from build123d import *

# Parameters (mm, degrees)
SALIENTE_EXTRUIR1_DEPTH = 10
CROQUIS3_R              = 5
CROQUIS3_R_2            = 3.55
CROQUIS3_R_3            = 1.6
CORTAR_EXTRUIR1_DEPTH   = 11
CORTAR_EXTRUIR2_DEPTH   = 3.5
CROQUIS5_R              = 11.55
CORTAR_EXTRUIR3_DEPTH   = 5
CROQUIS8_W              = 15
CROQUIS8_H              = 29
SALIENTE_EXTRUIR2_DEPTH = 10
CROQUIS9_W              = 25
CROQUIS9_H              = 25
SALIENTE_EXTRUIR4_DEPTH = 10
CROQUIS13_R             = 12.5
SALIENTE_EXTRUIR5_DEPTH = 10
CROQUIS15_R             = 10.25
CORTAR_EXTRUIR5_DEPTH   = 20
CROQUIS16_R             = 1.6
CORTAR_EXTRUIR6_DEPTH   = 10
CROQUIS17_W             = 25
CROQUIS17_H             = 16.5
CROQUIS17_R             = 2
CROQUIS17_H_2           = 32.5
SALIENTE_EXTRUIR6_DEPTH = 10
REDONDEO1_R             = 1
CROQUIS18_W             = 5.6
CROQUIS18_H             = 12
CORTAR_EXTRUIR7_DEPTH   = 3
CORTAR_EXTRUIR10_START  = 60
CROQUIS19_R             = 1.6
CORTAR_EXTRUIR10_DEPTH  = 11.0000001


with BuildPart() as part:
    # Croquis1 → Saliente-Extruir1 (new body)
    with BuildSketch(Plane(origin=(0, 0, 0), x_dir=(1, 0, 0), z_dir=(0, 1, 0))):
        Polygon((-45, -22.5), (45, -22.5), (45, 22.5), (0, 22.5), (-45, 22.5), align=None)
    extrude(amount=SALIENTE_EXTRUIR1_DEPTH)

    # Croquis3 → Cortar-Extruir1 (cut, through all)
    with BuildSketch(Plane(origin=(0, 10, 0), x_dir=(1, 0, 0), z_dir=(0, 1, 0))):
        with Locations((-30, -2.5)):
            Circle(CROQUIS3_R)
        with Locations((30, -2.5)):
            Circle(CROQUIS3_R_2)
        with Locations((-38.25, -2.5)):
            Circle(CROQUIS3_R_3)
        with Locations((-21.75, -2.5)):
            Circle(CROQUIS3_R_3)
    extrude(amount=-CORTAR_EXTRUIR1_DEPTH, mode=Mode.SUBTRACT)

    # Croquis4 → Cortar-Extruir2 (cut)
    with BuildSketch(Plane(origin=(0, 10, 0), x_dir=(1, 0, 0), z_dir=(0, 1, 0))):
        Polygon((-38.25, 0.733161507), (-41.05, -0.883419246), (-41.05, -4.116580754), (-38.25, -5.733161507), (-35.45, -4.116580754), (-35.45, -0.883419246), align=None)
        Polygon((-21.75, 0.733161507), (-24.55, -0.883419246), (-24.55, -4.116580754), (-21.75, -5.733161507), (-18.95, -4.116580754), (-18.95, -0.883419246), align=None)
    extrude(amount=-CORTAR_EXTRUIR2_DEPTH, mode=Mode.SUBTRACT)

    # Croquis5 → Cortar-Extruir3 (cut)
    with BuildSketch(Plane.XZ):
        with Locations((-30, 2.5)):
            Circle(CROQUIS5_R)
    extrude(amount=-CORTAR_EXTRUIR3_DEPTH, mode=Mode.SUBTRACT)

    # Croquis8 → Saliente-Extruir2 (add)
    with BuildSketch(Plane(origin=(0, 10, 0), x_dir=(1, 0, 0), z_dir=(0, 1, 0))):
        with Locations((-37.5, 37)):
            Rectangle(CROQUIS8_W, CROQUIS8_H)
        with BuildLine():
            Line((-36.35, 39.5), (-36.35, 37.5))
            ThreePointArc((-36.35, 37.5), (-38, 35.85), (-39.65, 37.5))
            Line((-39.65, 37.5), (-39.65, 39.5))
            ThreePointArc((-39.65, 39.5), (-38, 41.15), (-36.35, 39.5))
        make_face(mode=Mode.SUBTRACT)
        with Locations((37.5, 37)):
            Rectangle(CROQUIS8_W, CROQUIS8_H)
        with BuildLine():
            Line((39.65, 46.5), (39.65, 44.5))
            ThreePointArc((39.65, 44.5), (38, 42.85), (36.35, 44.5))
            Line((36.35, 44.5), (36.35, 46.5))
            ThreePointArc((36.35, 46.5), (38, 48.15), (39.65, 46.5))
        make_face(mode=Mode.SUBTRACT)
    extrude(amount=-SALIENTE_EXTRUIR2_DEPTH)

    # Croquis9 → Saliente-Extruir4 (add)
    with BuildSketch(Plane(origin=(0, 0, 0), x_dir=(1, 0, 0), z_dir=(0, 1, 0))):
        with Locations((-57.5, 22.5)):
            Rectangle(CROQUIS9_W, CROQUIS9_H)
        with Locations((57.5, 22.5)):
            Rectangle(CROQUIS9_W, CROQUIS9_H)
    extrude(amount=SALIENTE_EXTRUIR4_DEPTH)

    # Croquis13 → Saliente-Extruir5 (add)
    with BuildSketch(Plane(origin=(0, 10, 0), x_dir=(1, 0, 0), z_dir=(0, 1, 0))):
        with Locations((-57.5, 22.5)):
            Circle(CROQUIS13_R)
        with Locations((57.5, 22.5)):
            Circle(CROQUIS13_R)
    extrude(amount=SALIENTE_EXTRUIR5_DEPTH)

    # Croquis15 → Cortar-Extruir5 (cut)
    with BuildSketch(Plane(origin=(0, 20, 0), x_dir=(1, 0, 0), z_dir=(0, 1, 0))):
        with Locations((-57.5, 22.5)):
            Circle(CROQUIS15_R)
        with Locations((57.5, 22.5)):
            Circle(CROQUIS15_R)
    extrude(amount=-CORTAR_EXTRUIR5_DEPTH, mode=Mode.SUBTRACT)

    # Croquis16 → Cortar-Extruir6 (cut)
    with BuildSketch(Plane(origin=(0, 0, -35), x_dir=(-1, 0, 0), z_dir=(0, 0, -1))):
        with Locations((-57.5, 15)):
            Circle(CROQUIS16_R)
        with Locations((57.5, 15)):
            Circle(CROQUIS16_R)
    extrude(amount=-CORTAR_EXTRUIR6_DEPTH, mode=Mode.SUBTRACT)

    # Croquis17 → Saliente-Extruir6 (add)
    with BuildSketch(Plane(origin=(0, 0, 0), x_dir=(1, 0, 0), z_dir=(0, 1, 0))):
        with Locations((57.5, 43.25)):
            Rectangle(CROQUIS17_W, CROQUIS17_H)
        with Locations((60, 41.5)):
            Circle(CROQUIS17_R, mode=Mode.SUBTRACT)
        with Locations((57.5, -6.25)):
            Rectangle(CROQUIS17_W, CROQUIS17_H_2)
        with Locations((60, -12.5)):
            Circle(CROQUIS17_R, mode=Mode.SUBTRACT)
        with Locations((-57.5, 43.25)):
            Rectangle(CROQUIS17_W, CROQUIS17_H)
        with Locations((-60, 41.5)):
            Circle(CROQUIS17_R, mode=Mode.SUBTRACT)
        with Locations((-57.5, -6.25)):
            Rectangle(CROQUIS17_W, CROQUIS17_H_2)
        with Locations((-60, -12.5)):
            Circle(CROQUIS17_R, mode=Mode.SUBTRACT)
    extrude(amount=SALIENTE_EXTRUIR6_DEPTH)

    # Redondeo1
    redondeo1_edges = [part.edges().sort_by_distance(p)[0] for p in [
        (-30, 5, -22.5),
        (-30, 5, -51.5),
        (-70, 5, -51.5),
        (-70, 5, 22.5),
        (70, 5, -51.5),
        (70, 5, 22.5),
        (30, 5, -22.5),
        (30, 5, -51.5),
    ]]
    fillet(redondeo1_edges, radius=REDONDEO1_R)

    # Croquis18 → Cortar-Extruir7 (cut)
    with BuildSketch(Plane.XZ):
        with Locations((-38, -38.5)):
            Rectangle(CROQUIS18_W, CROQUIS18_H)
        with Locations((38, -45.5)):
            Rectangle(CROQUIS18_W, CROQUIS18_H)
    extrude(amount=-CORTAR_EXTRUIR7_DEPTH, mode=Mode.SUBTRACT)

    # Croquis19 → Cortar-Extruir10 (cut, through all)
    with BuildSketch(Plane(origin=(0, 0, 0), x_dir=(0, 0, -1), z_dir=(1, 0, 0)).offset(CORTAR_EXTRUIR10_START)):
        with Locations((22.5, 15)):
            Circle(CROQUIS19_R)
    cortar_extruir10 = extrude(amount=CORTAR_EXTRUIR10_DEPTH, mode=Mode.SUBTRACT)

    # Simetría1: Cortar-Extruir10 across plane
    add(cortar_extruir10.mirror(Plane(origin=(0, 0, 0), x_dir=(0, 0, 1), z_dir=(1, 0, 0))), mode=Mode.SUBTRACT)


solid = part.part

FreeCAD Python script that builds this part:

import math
import FreeCAD as App
import Part
import Sketcher
Q = App.Units.Quantity


def edges_at(feature, points):
    """Names of the edges that pass closest to the given points."""
    edges = feature.Shape.Edges
    near = lambda p: min(range(len(edges)), key=lambda i: edges[i].distToShape(Part.Vertex(*p))[0])
    return sorted({f"Edge{near(p) + 1}" for p in points})


def add_polygon(sketch, points):
    """Adds a closed chain of lines whose ends are joined by coincident constraints."""
    first, n = sketch.GeometryCount, len(points)
    for a, b in zip(points, points[1:] + points[:1]):
        sketch.addGeometry(Part.LineSegment(App.Vector(*a, 0), App.Vector(*b, 0)), False)
    for i in range(n):
        sketch.addConstraint(Sketcher.Constraint("Coincident", first + i, 2, first + (i + 1) % n, 1))

doc = App.newDocument("Part")
body = doc.addObject("PartDesign::Body", "Body")

sketch1 = body.newObject("Sketcher::SketchObject", "Sketch")
sketch1.AttachmentSupport = (doc.getObject("XZ_Plane"), [""])
sketch1.MapMode = "FlatFace"
add_polygon(sketch1, [(-45, 22), (45, 22), (45, -22), (-45, -22)])
sketch1.addConstraint([
    Sketcher.Constraint("Horizontal", 0),
    Sketcher.Constraint("Vertical", 1),
    Sketcher.Constraint("Horizontal", 2),
    Sketcher.Constraint("Vertical", 3),
    Sketcher.Constraint("Symmetric", 0, 2, 2, 2, -1, 1),
    Sketcher.Constraint("DistanceX", 0, 1, 0, 2, Q("90 mm")),
    Sketcher.Constraint("DistanceY", 1, 2, 1, 1, Q("45 mm")),
])
pad1 = body.newObject("PartDesign::Pad", "Pad")
pad1.Profile = sketch1
pad1.Length = 10
pad1.Reversed = True

sketch2 = body.newObject("Sketcher::SketchObject", "Sketch001")
sketch2.AttachmentSupport = (doc.getObject("XZ_Plane"), [""])
sketch2.MapMode = "FlatFace"
sketch2.AttachmentOffset = App.Placement(App.Vector(0, 0, -10), App.Rotation())
sketch2.addGeometry([
    Part.Circle(App.Vector(-30, 2.5, 0), App.Vector(0, 0, 1), 5),
    Part.Circle(App.Vector(30, 2.5, 0), App.Vector(0, 0, 1), 3.5),
    Part.Circle(App.Vector(-38.2, 2.5, 0), App.Vector(0, 0, 1), 1.6),
    Part.Circle(App.Vector(-21.8, 2.5, 0), App.Vector(0, 0, 1), 1.6),
], False)
sketch2.addConstraint([
    Sketcher.Constraint("Equal", 2, 3),
    Sketcher.Constraint("Symmetric", 0, 3, 1, 3, -2),
    Sketcher.Constraint("Horizontal", 1, 3, 2, 3),
    Sketcher.Constraint("Horizontal", 2, 3, 3, 3),
    Sketcher.Constraint("Diameter", 0, Q("10 mm")),
    Sketcher.Constraint("Diameter", 1, Q("7.1 mm")),
    Sketcher.Constraint("Diameter", 2, Q("3.2 mm")),
    Sketcher.Constraint("DistanceX", 0, 3, -1, 1, Q("30 mm")),
    Sketcher.Constraint("DistanceY", -1, 1, 0, 3, Q("2.5 mm")),
    Sketcher.Constraint("DistanceX", 2, 3, 3, 3, Q("16.5 mm")),
    Sketcher.Constraint("DistanceX", 2, 3, -1, 1, Q("38.25 mm")),
])
pocket1 = body.newObject("PartDesign::Pocket", "Pocket")
pocket1.Profile = sketch2
pocket1.Type = "ThroughAll"
pocket1.Reversed = True

sketch3 = body.newObject("Sketcher::SketchObject", "Sketch002")
sketch3.AttachmentSupport = (doc.getObject("XZ_Plane"), [""])
sketch3.MapMode = "FlatFace"
sketch3.AttachmentOffset = App.Placement(App.Vector(0, 0, -10), App.Rotation())
add_polygon(sketch3, [(-38.2, -0.7), (-41, 0.9), (-41, 4.1), (-38.2, 5.7), (-35.5, 4.1), (-35.5, 0.9)])
add_polygon(sketch3, [(-21.8, -0.7), (-24.6, 0.9), (-24.6, 4.1), (-21.8, 5.7), (-18.9, 4.1), (-18.9, 0.9)])
sketch3.addConstraint([
    Sketcher.Constraint("Vertical", 1),
    Sketcher.Constraint("Vertical", 4),
    Sketcher.Constraint("Vertical", 7),
    Sketcher.Constraint("Vertical", 10),
    Sketcher.Constraint("Parallel", 0, 3),
    Sketcher.Constraint("Parallel", 2, 5),
    Sketcher.Constraint("Parallel", 3, 6),
    Sketcher.Constraint("Parallel", 5, 8),
    Sketcher.Constraint("Parallel", 6, 9),
    Sketcher.Constraint("Parallel", 8, 11),
    Sketcher.Constraint("Horizontal", 1, 2, 3, 2),
    Sketcher.Constraint("Horizontal", 0, 2, 4, 2),
    Sketcher.Constraint("Horizontal", 4, 2, 6, 2),
    Sketcher.Constraint("Horizontal", 3, 2, 7, 2),
    Sketcher.Constraint("Horizontal", 2, 2, 8, 2),
    Sketcher.Constraint("Horizontal", 7, 2, 9, 2),
    Sketcher.Constraint("Horizontal", 6, 2, 10, 2),
    Sketcher.Constraint("Vertical", 2, 2, 5, 2),
    Sketcher.Constraint("Angle", 0, Q("150 deg")),
    Sketcher.Constraint("DistanceX", 1, 2, 2, 2, Q("2.8 mm")),
    Sketcher.Constraint("DistanceX", 4, 2, 6, 2, Q("10.9 mm")),
    Sketcher.Constraint("DistanceX", 0, 2, -1, 1, Q("41.05 mm")),
    Sketcher.Constraint("DistanceY", 1, 1, 1, 2, Q("3.233162 mm")),
    Sketcher.Constraint("DistanceY", -1, 1, 0, 2, Q("0.883419 mm")),
])
pocket2 = body.newObject("PartDesign::Pocket", "Pocket001")
pocket2.Profile = sketch3
pocket2.Length = 3.5
pocket2.Reversed = True

sketch4 = body.newObject("Sketcher::SketchObject", "Sketch003")
sketch4.AttachmentSupport = (doc.getObject("XZ_Plane"), [""])
sketch4.MapMode = "FlatFace"
sketch4.addGeometry(Part.Circle(App.Vector(-30, 2, 0), App.Vector(0, 0, 1), 12), False)
sketch4.addConstraint([
    Sketcher.Constraint("Diameter", 0, Q("23.1 mm")),
    Sketcher.Constraint("DistanceX", 0, 3, -1, 1, Q("30 mm")),
    Sketcher.Constraint("DistanceY", -1, 1, 0, 3, Q("2.5 mm")),
])
pocket3 = body.newObject("PartDesign::Pocket", "Pocket002")
pocket3.Profile = sketch4
pocket3.Length = 5

sketch5 = body.newObject("Sketcher::SketchObject", "Sketch004")
sketch5.AttachmentSupport = (doc.getObject("XZ_Plane"), [""])
sketch5.MapMode = "FlatFace"
sketch5.AttachmentOffset = App.Placement(App.Vector(0, 0, -10), App.Rotation())
add_polygon(sketch5, [(-45, -51.5), (-45, -22.5), (-30, -22.5), (-30, -51.5)])
sketch5.addGeometry(Part.ArcOfCircle(Part.Circle(App.Vector(-38, -39.5, 0), App.Vector(0, 0, 1), 1.6), math.radians(180), math.radians(360)), False)
sketch5.addGeometry(Part.LineSegment(App.Vector(-36.4, -39.5, 0), App.Vector(-36.4, -37.5, 0)), False)
sketch5.addGeometry(Part.ArcOfCircle(Part.Circle(App.Vector(-38, -37.5, 0), App.Vector(0, 0, 1), 1.6), math.radians(0), math.radians(180)), False)
sketch5.addGeometry(Part.LineSegment(App.Vector(-39.6, -37.5, 0), App.Vector(-39.6, -39.5, 0)), False)
add_polygon(sketch5, [(30, -51.5), (30, -22.5), (45, -22.5), (45, -51.5)])
sketch5.addGeometry(Part.ArcOfCircle(Part.Circle(App.Vector(38, -46.5, 0), App.Vector(0, 0, 1), 1.6), math.radians(180), math.radians(360)), False)
sketch5.addGeometry(Part.LineSegment(App.Vector(39.6, -46.5, 0), App.Vector(39.6, -44.5, 0)), False)
sketch5.addGeometry(Part.ArcOfCircle(Part.Circle(App.Vector(38, -44.5, 0), App.Vector(0, 0, 1), 1.6), math.radians(0), math.radians(180)), False)
sketch5.addGeometry(Part.LineSegment(App.Vector(36.4, -44.5, 0), App.Vector(36.4, -46.5, 0)), False)
sketch5.addConstraint([
    Sketcher.Constraint("Tangent", 4, 2, 5, 1),
    Sketcher.Constraint("Tangent", 5, 2, 6, 1),
    Sketcher.Constraint("Tangent", 6, 2, 7, 1),
    Sketcher.Constraint("Tangent", 7, 2, 4, 1),
    Sketcher.Constraint("Tangent", 12, 2, 13, 1),
    Sketcher.Constraint("Tangent", 13, 2, 14, 1),
    Sketcher.Constraint("Tangent", 14, 2, 15, 1),
    Sketcher.Constraint("Tangent", 15, 2, 12, 1),
    Sketcher.Constraint("Vertical", 0),
    Sketcher.Constraint("Horizontal", 1),
    Sketcher.Constraint("Vertical", 2),
    Sketcher.Constraint("Horizontal", 3),
    Sketcher.Constraint("Vertical", 5),
    Sketcher.Constraint("Vertical", 7),
    Sketcher.Constraint("Vertical", 8),
    Sketcher.Constraint("Horizontal", 9),
    Sketcher.Constraint("Vertical", 10),
    Sketcher.Constraint("Horizontal", 11),
    Sketcher.Constraint("Vertical", 13),
    Sketcher.Constraint("Vertical", 15),
    Sketcher.Constraint("Equal", 6, 12),
    Sketcher.Constraint("Symmetric", 1, 2, 8, 2, -2),
    Sketcher.Constraint("Symmetric", 3, 2, 10, 2, -2),
    Sketcher.Constraint("Equal", 7, 13),
    Sketcher.Constraint("DistanceX", 1, 1, 1, 2, Q("15 mm")),
    Sketcher.Constraint("DistanceY", 0, 1, 0, 2, Q("29 mm")),
    Sketcher.Constraint("DistanceY", 5, 1, 5, 2, Q("2 mm")),
    Sketcher.Constraint("Radius", 4, Q("1.65 mm")),
    Sketcher.Constraint("DistanceX", 4, 3, -1, 1, Q("38 mm")),
    Sketcher.Constraint("DistanceX", -1, 1, 12, 3, Q("38 mm")),
    Sketcher.Constraint("DistanceX", 0, 2, -1, 1, Q("45 mm")),
    Sketcher.Constraint("DistanceY", 12, 3, 4, 3, Q("7 mm")),
    Sketcher.Constraint("DistanceY", 6, 3, 0, 2, Q("15 mm")),
    Sketcher.Constraint("DistanceY", 4, 3, -1, 1, Q("39.5 mm")),
])
pad2 = body.newObject("PartDesign::Pad", "Pad001")
pad2.Profile = sketch5
pad2.Length = 10

sketch6 = body.newObject("Sketcher::SketchObject", "Sketch005")
sketch6.AttachmentSupport = (doc.getObject("XZ_Plane"), [""])
sketch6.MapMode = "FlatFace"
add_polygon(sketch6, [(-70, -35), (-70, -10), (-45, -10), (-45, -35)])
add_polygon(sketch6, [(45, -35), (45, -10), (70, -10), (70, -35)])
sketch6.addConstraint([
    Sketcher.Constraint("Vertical", 0),
    Sketcher.Constraint("Horizontal", 1),
    Sketcher.Constraint("Vertical", 2),
    Sketcher.Constraint("Horizontal", 3),
    Sketcher.Constraint("Vertical", 4),
    Sketcher.Constraint("Horizontal", 5),
    Sketcher.Constraint("Vertical", 6),
    Sketcher.Constraint("Horizontal", 7),
    Sketcher.Constraint("Symmetric", 1, 2, 4, 2, -2),
    Sketcher.Constraint("Symmetric", 3, 2, 6, 2, -2),
    Sketcher.Constraint("Equal", 7, 0),
    Sketcher.Constraint("DistanceX", 1, 1, 1, 2, Q("25 mm")),
    Sketcher.Constraint("DistanceX", 0, 2, -1, 1, Q("70 mm")),
    Sketcher.Constraint("DistanceY", 0, 2, -1, 1, Q("10 mm")),
])
pad3 = body.newObject("PartDesign::Pad", "Pad002")
pad3.Profile = sketch6
pad3.Length = 10
pad3.Reversed = True

sketch7 = body.newObject("Sketcher::SketchObject", "Sketch006")
sketch7.AttachmentSupport = (doc.getObject("XZ_Plane"), [""])
sketch7.MapMode = "FlatFace"
sketch7.AttachmentOffset = App.Placement(App.Vector(0, 0, -10), App.Rotation())
sketch7.addGeometry([
    Part.Circle(App.Vector(-58, -22, 0), App.Vector(0, 0, 1), 12),
    Part.Circle(App.Vector(58, -22, 0), App.Vector(0, 0, 1), 12),
], False)
sketch7.addConstraint([
    Sketcher.Constraint("Equal", 0, 1),
    Sketcher.Constraint("Symmetric", 0, 3, 1, 3, -2),
    Sketcher.Constraint("Diameter", 0, Q("25 mm")),
    Sketcher.Constraint("DistanceX", 0, 3, 1, 3, Q("115 mm")),
    Sketcher.Constraint("DistanceY", 0, 3, -1, 1, Q("22.5 mm")),
])
pad4 = body.newObject("PartDesign::Pad", "Pad003")
pad4.Profile = sketch7
pad4.Length = 10
pad4.Reversed = True

sketch8 = body.newObject("Sketcher::SketchObject", "Sketch007")
sketch8.AttachmentSupport = (doc.getObject("XZ_Plane"), [""])
sketch8.MapMode = "FlatFace"
sketch8.AttachmentOffset = App.Placement(App.Vector(0, 0, -20), App.Rotation())
sketch8.addGeometry([
    Part.Circle(App.Vector(-58, -22, 0), App.Vector(0, 0, 1), 10),
    Part.Circle(App.Vector(58, -22, 0), App.Vector(0, 0, 1), 10),
], False)
sketch8.addConstraint([
    Sketcher.Constraint("Equal", 0, 1),
    Sketcher.Constraint("Symmetric", 0, 3, 1, 3, -2),
    Sketcher.Constraint("Diameter", 0, Q("20.5 mm")),
    Sketcher.Constraint("DistanceX", 0, 3, 1, 3, Q("115 mm")),
    Sketcher.Constraint("DistanceY", 0, 3, -1, 1, Q("22.5 mm")),
])
pocket4 = body.newObject("PartDesign::Pocket", "Pocket003")
pocket4.Profile = sketch8
pocket4.Length = 20
pocket4.Reversed = True

sketch9 = body.newObject("Sketcher::SketchObject", "Sketch008")
sketch9.AttachmentSupport = (doc.getObject("XY_Plane"), [""])
sketch9.MapMode = "FlatFace"
sketch9.AttachmentOffset = App.Placement(App.Vector(0, 0, -35), App.Rotation())
sketch9.addGeometry([
    Part.Circle(App.Vector(57.5, 15, 0), App.Vector(0, 0, 1), 1.6),
    Part.Circle(App.Vector(-57.5, 15, 0), App.Vector(0, 0, 1), 1.6),
], False)
sketch9.addConstraint([
    Sketcher.Constraint("Equal", 0, 1),
    Sketcher.Constraint("Symmetric", 0, 3, 1, 3, -2),
    Sketcher.Constraint("Diameter", 0, Q("3.2 mm")),
    Sketcher.Constraint("DistanceY", -1, 1, 0, 3, Q("15 mm")),
    Sketcher.Constraint("DistanceX", 1, 3, 0, 3, Q("115 mm")),
])
pocket5 = body.newObject("PartDesign::Pocket", "Pocket004")
pocket5.Profile = sketch9
pocket5.Length = 10
pocket5.Reversed = True

sketch10 = body.newObject("Sketcher::SketchObject", "Sketch009")
sketch10.AttachmentSupport = (doc.getObject("XZ_Plane"), [""])
sketch10.MapMode = "FlatFace"
add_polygon(sketch10, [(45, -51.5), (45, -35), (70, -35), (70, -51.5)])
sketch10.addGeometry(Part.Circle(App.Vector(60, -41.5, 0), App.Vector(0, 0, 1), 2), False)
add_polygon(sketch10, [(45, -10), (45, 22.5), (70, 22.5), (70, -10)])
sketch10.addGeometry(Part.Circle(App.Vector(60, 12.5, 0), App.Vector(0, 0, 1), 2), False)
add_polygon(sketch10, [(-70, -51.5), (-70, -35), (-45, -35), (-45, -51.5)])
sketch10.addGeometry(Part.Circle(App.Vector(-60, -41.5, 0), App.Vector(0, 0, 1), 2), False)
add_polygon(sketch10, [(-70, -10), (-70, 22.5), (-45, 22.5), (-45, -10)])
sketch10.addGeometry(Part.Circle(App.Vector(-60, 12.5, 0), App.Vector(0, 0, 1), 2), False)
sketch10.addConstraint([
    Sketcher.Constraint("Vertical", 0),
    Sketcher.Constraint("Horizontal", 1),
    Sketcher.Constraint("Vertical", 2),
    Sketcher.Constraint("Horizontal", 3),
    Sketcher.Constraint("Vertical", 5),
    Sketcher.Constraint("Horizontal", 6),
    Sketcher.Constraint("Vertical", 7),
    Sketcher.Constraint("Horizontal", 8),
    Sketcher.Constraint("Vertical", 10),
    Sketcher.Constraint("Horizontal", 11),
    Sketcher.Constraint("Vertical", 12),
    Sketcher.Constraint("Horizontal", 13),
    Sketcher.Constraint("Vertical", 15),
    Sketcher.Constraint("Horizontal", 16),
    Sketcher.Constraint("Vertical", 17),
    Sketcher.Constraint("Horizontal", 18),
    Sketcher.Constraint("Equal", 4, 9),
    Sketcher.Constraint("Equal", 9, 14),
    Sketcher.Constraint("Equal", 14, 19),
    Sketcher.Constraint("Symmetric", 4, 3, 14, 3, -2),
    Sketcher.Constraint("Symmetric", 9, 3, 19, 3, -2),
    Sketcher.Constraint("Symmetric", 1, 2, 10, 2, -2),
    Sketcher.Constraint("Symmetric", 3, 2, 12, 2, -2),
    Sketcher.Constraint("Symmetric", 6, 2, 15, 2, -2),
    Sketcher.Constraint("Symmetric", 8, 2, 17, 2, -2),
    Sketcher.Constraint("Vertical", 4, 3, 9, 3),
    Sketcher.Constraint("Vertical", 3, 2, 5, 2),
    Sketcher.Constraint("Vertical", 2, 2, 6, 2),
    Sketcher.Constraint("Diameter", 4, Q("4 mm")),
    Sketcher.Constraint("DistanceX", 1, 1, 1, 2, Q("25 mm")),
    Sketcher.Constraint("DistanceY", 0, 1, 0, 2, Q("16.5 mm")),
    Sketcher.Constraint("DistanceY", 5, 1, 5, 2, Q("32.5 mm")),
    Sketcher.Constraint("DistanceX", -1, 1, 4, 3, Q("60 mm")),
    Sketcher.Constraint("DistanceX", -1, 1, 0, 2, Q("45 mm")),
    Sketcher.Constraint("DistanceY", 0, 2, -1, 1, Q("35 mm")),
    Sketcher.Constraint("DistanceY", 7, 2, -1, 1, Q("10 mm")),
    Sketcher.Constraint("DistanceY", 4, 3, 9, 3, Q("54 mm")),
    Sketcher.Constraint("DistanceY", 2, 2, 4, 3, Q("10 mm")),
])
pad5 = body.newObject("PartDesign::Pad", "Pad004")
pad5.Profile = sketch10
pad5.Length = 10
pad5.Reversed = True
doc.recompute()

fillet = body.newObject("PartDesign::Fillet", "Fillet")
fillet.Base = (pad5, edges_at(pad5, [
    (-30, 5, -22.5),
    (-30, 5, -51.5),
    (-70, 5, -51.5),
    (-70, 5, 22.5),
    (70, 5, -51.5),
    (70, 5, 22.5),
    (30, 5, -22.5),
    (30, 5, -51.5),
]))
fillet.Radius = 1

sketch11 = body.newObject("Sketcher::SketchObject", "Sketch010")
sketch11.AttachmentSupport = (doc.getObject("XZ_Plane"), [""])
sketch11.MapMode = "FlatFace"
add_polygon(sketch11, [(-41, -32), (-41, -44), (-35, -44), (-35, -32)])
add_polygon(sketch11, [(35, -40), (35, -52), (41, -52), (41, -40)])
sketch11.addConstraint([
    Sketcher.Constraint("Vertical", 0),
    Sketcher.Constraint("Horizontal", 1),
    Sketcher.Constraint("Vertical", 2),
    Sketcher.Constraint("Horizontal", 3),
    Sketcher.Constraint("Vertical", 4),
    Sketcher.Constraint("Horizontal", 5),
    Sketcher.Constraint("Vertical", 6),
    Sketcher.Constraint("Horizontal", 7),
    Sketcher.Constraint("Equal", 3, 5),
    Sketcher.Constraint("Equal", 2, 4),
    Sketcher.Constraint("DistanceY", 0, 2, 0, 1, Q("12 mm")),
    Sketcher.Constraint("DistanceX", 1, 1, 1, 2, Q("5.6 mm")),
    Sketcher.Constraint("DistanceY", 4, 2, 1, 2, Q("7 mm")),
    Sketcher.Constraint("DistanceX", 0, 2, 4, 2, Q("76 mm")),
    Sketcher.Constraint("DistanceX", 0, 2, -1, 1, Q("40.8 mm")),
    Sketcher.Constraint("DistanceY", 0, 2, -1, 1, Q("44.5 mm")),
])
pocket6 = body.newObject("PartDesign::Pocket", "Pocket005")
pocket6.Profile = sketch11
pocket6.Length = 3

sketch12 = body.newObject("Sketcher::SketchObject", "Sketch011")
sketch12.AttachmentSupport = (doc.getObject("YZ_Plane"), [""])
sketch12.MapMode = "FlatFace"
sketch12.AttachmentOffset = App.Placement(App.Vector(0, 0, 60), App.Rotation())
sketch12.addGeometry(Part.Circle(App.Vector(15, -22.5, 0), App.Vector(0, 0, 1), 1.6), False)
sketch12.addConstraint([
    Sketcher.Constraint("Diameter", 0, Q("3.2 mm")),
    Sketcher.Constraint("DistanceX", -1, 1, 0, 3, Q("15 mm")),
    Sketcher.Constraint("DistanceY", 0, 3, -1, 1, Q("22.5 mm")),
])
pocket7 = body.newObject("PartDesign::Pocket", "Pocket006")
pocket7.Profile = sketch12
pocket7.Type = "ThroughAll"
pocket7.Reversed = True
doc.recompute()

mirrored = body.newObject("PartDesign::Mirrored", "Mirrored")
mirrored.Originals = [pocket7]
mirrored.MirrorPlane = (doc.getObject("YZ_Plane"), [""])
body.Tip = mirrored

doc.recompute()
